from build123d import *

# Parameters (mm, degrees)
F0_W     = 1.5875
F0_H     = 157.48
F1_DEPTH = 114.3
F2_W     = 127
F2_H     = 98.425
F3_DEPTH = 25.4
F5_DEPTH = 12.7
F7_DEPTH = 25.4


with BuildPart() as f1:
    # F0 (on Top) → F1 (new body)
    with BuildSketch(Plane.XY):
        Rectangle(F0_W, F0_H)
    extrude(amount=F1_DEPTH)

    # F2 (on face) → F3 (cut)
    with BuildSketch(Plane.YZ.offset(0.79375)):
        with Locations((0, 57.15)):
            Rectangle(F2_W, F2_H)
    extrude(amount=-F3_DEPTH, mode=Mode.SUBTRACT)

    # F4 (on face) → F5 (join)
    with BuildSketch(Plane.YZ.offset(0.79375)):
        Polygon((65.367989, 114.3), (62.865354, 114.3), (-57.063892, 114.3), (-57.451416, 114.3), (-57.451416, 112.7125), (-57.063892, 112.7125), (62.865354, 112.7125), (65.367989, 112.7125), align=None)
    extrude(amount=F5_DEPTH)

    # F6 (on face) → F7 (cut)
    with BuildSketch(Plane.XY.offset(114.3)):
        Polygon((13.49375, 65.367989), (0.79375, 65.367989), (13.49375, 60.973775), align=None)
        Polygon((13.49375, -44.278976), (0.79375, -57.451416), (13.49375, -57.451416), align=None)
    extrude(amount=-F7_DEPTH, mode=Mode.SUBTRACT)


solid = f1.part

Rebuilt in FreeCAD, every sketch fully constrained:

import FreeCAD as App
import Part
import Sketcher

V = App.Vector
Q = App.Units.Quantity

doc = App.newDocument("Part")
body = doc.addObject("PartDesign::Body", "Body")

sketch1 = body.newObject("Sketcher::SketchObject", "Sketch")
sketch1.AttachmentSupport = (doc.getObject("XY_Plane"), [""])
sketch1.MapMode = "FlatFace"
sketch1.addGeometry(Part.LineSegment(V(-0.79375, 78.74, 0), V(-0.79375, -78.74, 0)), False)
sketch1.addGeometry(Part.LineSegment(V(-0.79375, -78.74, 0), V(0.79375, -78.74, 0)), False)
sketch1.addGeometry(Part.LineSegment(V(0.79375, -78.74, 0), V(0.79375, 78.74, 0)), False)
sketch1.addGeometry(Part.LineSegment(V(0.79375, 78.74, 0), V(-0.79375, 78.74, 0)), False)
sketch1.addConstraint(Sketcher.Constraint("Coincident", 0, 2, 1, 1))
sketch1.addConstraint(Sketcher.Constraint("Coincident", 1, 2, 2, 1))
sketch1.addConstraint(Sketcher.Constraint("Coincident", 2, 2, 3, 1))
sketch1.addConstraint(Sketcher.Constraint("Coincident", 3, 2, 0, 1))
sketch1.addConstraint(Sketcher.Constraint("Vertical", 0))
sketch1.addConstraint(Sketcher.Constraint("Horizontal", 1))
sketch1.addConstraint(Sketcher.Constraint("Vertical", 2))
sketch1.addConstraint(Sketcher.Constraint("Horizontal", 3))
sketch1.addConstraint(Sketcher.Constraint("Symmetric", 0, 2, 2, 2, -1, 1))
sketch1.addConstraint(Sketcher.Constraint("DistanceY", 0, 2, 0, 1, Q("6.2 in")))
sketch1.addConstraint(Sketcher.Constraint("DistanceX", 1, 1, 1, 2, Q("0.0625 in")))
pad1 = body.newObject("PartDesign::Pad", "Pad")
pad1.Profile = sketch1
pad1.Length = Q("4.5 in")

sketch2 = body.newObject("Sketcher::SketchObject", "Sketch001")
sketch2.AttachmentSupport = (doc.getObject("YZ_Plane"), [""])
sketch2.MapMode = "FlatFace"
sketch2.AttachmentOffset = App.Placement(V(0, 0, 0.03125 * 25.4), App.Rotation())
sketch2.addGeometry(Part.LineSegment(V(-63.5, 106.3625, 0), V(-63.5, 7.9375, 0)), False)
sketch2.addGeometry(Part.LineSegment(V(-63.5, 7.9375, 0), V(63.5, 7.9375, 0)), False)
sketch2.addGeometry(Part.LineSegment(V(63.5, 7.9375, 0), V(63.5, 106.3625, 0)), False)
sketch2.addGeometry(Part.LineSegment(V(63.5, 106.3625, 0), V(-63.5, 106.3625, 0)), False)
sketch2.addConstraint(Sketcher.Constraint("Coincident", 0, 2, 1, 1))
sketch2.addConstraint(Sketcher.Constraint("Coincident", 1, 2, 2, 1))
sketch2.addConstraint(Sketcher.Constraint("Coincident", 2, 2, 3, 1))
sketch2.addConstraint(Sketcher.Constraint("Coincident", 3, 2, 0, 1))
sketch2.addConstraint(Sketcher.Constraint("Vertical", 0))
sketch2.addConstraint(Sketcher.Constraint("Horizontal", 1))
sketch2.addConstraint(Sketcher.Constraint("Vertical", 2))
sketch2.addConstraint(Sketcher.Constraint("Horizontal", 3))
sketch2.addConstraint(Sketcher.Constraint("DistanceX", 1, 1, 1, 2, Q("5 in")))
sketch2.addConstraint(Sketcher.Constraint("DistanceX", 0, 2, -1, 1, Q("2.5 in")))
sketch2.addConstraint(Sketcher.Constraint("DistanceY", 0, 2, 0, 1, Q("3.875 in")))
sketch2.addConstraint(Sketcher.Constraint("DistanceY", -1, 1, 0, 2, Q("0.3125 in")))
pocket1 = body.newObject("PartDesign::Pocket", "Pocket")
pocket1.Profile = sketch2
pocket1.Length = Q("1 in")

sketch3 = body.newObject("Sketcher::SketchObject", "Sketch002")
sketch3.AttachmentSupport = (doc.getObject("YZ_Plane"), [""])
sketch3.MapMode = "FlatFace"
sketch3.AttachmentOffset = App.Placement(V(0, 0, 0.03125 * 25.4), App.Rotation())
sketch3.addGeometry(Part.LineSegment(V(65.367989, 114.3, 0), V(-57.451416, 114.3, 0)), False)
sketch3.addGeometry(Part.LineSegment(V(-57.451416, 114.3, 0), V(-57.451416, 112.7125, 0)), False)
sketch3.addGeometry(Part.LineSegment(V(-57.451416, 112.7125, 0), V(65.367989, 112.7125, 0)), False)
sketch3.addGeometry(Part.LineSegment(V(65.367989, 112.7125, 0), V(65.367989, 114.3, 0)), False)
sketch3.addConstraint(Sketcher.Constraint("Coincident", 0, 2, 1, 1))
sketch3.addConstraint(Sketcher.Constraint("Coincident", 1, 2, 2, 1))
sketch3.addConstraint(Sketcher.Constraint("Coincident", 2, 2, 3, 1))
sketch3.addConstraint(Sketcher.Constraint("Coincident", 3, 2, 0, 1))
sketch3.addConstraint(Sketcher.Constraint("Horizontal", 0))
sketch3.addConstraint(Sketcher.Constraint("Vertical", 1))
sketch3.addConstraint(Sketcher.Constraint("Horizontal", 2))
sketch3.addConstraint(Sketcher.Constraint("Vertical", 3))
sketch3.addConstraint(Sketcher.Constraint("DistanceY", -1, 1, 0, 2, Q("4.5 in")))
sketch3.addConstraint(Sketcher.Constraint("DistanceY", 1, 2, 1, 1, Q("0.0625 in")))
sketch3.addConstraint(Sketcher.Constraint("DistanceX", 0, 2, 0, 1, Q("122.819405 mm")))
sketch3.addConstraint(Sketcher.Constraint("DistanceX", -1, 1, 2, 2, Q("65.367989 mm")))
pad2 = body.newObject("PartDesign::Pad", "Pad001")
pad2.Profile = sketch3
pad2.Length = Q("0.5 in")

sketch4 = body.newObject("Sketcher::SketchObject", "Sketch003")
sketch4.AttachmentSupport = (doc.getObject("XY_Plane"), [""])
sketch4.MapMode = "FlatFace"
sketch4.AttachmentOffset = App.Placement(V(0, 0, 4.5 * 25.4), App.Rotation())
sketch4.addGeometry(Part.LineSegment(V(13.49375, 65.367989, 0), V(0.79375, 65.367989, 0)), False)
sketch4.addGeometry(Part.LineSegment(V(0.79375, 65.367989, 0), V(13.49375, 60.973775, 0)), False)
sketch4.addGeometry(Part.LineSegment(V(13.49375, 60.973775, 0), V(13.49375, 65.367989, 0)), False)
sketch4.addGeometry(Part.LineSegment(V(13.49375, -44.278976, 0), V(0.79375, -57.451416, 0)), False)
sketch4.addGeometry(Part.LineSegment(V(0.79375, -57.451416, 0), V(13.49375, -57.451416, 0)), False)
sketch4.addGeometry(Part.LineSegment(V(13.49375, -57.451416, 0), V(13.49375, -44.278976, 0)), False)
sketch4.addConstraint(Sketcher.Constraint("Coincident", 0, 2, 1, 1))
sketch4.addConstraint(Sketcher.Constraint("Coincident", 1, 2, 2, 1))
sketch4.addConstraint(Sketcher.Constraint("Coincident", 2, 2, 0, 1))
sketch4.addConstraint(Sketcher.Constraint("Coincident", 3, 2, 4, 1))
sketch4.addConstraint(Sketcher.Constraint("Coincident", 4, 2, 5, 1))
sketch4.addConstraint(Sketcher.Constraint("Coincident", 5, 2, 3, 1))
sketch4.addConstraint(Sketcher.Constraint("Horizontal", 0))
sketch4.addConstraint(Sketcher.Constraint("Vertical", 2))
sketch4.addConstraint(Sketcher.Constraint("Horizontal", 4))
sketch4.addConstraint(Sketcher.Constraint("Vertical", 5))
sketch4.addConstraint(Sketcher.Constraint("Vertical", 0, 2, 3, 2))
sketch4.addConstraint(Sketcher.Constraint("Vertical", 2, 2, 4, 2))
sketch4.addConstraint(Sketcher.Constraint("DistanceX", 0, 2, 0, 1, Q("0.5 in")))
sketch4.addConstraint(Sketcher.Constraint("DistanceY", 5, 1, 5, 2, Q("0.5186 in")))
sketch4.addConstraint(Sketcher.Constraint("DistanceX", -1, 1, 0, 2, Q("0.03125 in")))
sketch4.addConstraint(Sketcher.Constraint("DistanceY", 2, 1, 2, 2, Q("4.394214 mm")))
sketch4.addConstraint(Sketcher.Constraint("DistanceY", -1, 1, 0, 2, Q("65.367989 mm")))
sketch4.addConstraint(Sketcher.Constraint("DistanceY", 3, 2, 1, 2, Q("118.425191 mm")))
pocket2 = body.newObject("PartDesign::Pocket", "Pocket001")
pocket2.Profile = sketch4
pocket2.Length = Q("1 in")

doc.recompute()
